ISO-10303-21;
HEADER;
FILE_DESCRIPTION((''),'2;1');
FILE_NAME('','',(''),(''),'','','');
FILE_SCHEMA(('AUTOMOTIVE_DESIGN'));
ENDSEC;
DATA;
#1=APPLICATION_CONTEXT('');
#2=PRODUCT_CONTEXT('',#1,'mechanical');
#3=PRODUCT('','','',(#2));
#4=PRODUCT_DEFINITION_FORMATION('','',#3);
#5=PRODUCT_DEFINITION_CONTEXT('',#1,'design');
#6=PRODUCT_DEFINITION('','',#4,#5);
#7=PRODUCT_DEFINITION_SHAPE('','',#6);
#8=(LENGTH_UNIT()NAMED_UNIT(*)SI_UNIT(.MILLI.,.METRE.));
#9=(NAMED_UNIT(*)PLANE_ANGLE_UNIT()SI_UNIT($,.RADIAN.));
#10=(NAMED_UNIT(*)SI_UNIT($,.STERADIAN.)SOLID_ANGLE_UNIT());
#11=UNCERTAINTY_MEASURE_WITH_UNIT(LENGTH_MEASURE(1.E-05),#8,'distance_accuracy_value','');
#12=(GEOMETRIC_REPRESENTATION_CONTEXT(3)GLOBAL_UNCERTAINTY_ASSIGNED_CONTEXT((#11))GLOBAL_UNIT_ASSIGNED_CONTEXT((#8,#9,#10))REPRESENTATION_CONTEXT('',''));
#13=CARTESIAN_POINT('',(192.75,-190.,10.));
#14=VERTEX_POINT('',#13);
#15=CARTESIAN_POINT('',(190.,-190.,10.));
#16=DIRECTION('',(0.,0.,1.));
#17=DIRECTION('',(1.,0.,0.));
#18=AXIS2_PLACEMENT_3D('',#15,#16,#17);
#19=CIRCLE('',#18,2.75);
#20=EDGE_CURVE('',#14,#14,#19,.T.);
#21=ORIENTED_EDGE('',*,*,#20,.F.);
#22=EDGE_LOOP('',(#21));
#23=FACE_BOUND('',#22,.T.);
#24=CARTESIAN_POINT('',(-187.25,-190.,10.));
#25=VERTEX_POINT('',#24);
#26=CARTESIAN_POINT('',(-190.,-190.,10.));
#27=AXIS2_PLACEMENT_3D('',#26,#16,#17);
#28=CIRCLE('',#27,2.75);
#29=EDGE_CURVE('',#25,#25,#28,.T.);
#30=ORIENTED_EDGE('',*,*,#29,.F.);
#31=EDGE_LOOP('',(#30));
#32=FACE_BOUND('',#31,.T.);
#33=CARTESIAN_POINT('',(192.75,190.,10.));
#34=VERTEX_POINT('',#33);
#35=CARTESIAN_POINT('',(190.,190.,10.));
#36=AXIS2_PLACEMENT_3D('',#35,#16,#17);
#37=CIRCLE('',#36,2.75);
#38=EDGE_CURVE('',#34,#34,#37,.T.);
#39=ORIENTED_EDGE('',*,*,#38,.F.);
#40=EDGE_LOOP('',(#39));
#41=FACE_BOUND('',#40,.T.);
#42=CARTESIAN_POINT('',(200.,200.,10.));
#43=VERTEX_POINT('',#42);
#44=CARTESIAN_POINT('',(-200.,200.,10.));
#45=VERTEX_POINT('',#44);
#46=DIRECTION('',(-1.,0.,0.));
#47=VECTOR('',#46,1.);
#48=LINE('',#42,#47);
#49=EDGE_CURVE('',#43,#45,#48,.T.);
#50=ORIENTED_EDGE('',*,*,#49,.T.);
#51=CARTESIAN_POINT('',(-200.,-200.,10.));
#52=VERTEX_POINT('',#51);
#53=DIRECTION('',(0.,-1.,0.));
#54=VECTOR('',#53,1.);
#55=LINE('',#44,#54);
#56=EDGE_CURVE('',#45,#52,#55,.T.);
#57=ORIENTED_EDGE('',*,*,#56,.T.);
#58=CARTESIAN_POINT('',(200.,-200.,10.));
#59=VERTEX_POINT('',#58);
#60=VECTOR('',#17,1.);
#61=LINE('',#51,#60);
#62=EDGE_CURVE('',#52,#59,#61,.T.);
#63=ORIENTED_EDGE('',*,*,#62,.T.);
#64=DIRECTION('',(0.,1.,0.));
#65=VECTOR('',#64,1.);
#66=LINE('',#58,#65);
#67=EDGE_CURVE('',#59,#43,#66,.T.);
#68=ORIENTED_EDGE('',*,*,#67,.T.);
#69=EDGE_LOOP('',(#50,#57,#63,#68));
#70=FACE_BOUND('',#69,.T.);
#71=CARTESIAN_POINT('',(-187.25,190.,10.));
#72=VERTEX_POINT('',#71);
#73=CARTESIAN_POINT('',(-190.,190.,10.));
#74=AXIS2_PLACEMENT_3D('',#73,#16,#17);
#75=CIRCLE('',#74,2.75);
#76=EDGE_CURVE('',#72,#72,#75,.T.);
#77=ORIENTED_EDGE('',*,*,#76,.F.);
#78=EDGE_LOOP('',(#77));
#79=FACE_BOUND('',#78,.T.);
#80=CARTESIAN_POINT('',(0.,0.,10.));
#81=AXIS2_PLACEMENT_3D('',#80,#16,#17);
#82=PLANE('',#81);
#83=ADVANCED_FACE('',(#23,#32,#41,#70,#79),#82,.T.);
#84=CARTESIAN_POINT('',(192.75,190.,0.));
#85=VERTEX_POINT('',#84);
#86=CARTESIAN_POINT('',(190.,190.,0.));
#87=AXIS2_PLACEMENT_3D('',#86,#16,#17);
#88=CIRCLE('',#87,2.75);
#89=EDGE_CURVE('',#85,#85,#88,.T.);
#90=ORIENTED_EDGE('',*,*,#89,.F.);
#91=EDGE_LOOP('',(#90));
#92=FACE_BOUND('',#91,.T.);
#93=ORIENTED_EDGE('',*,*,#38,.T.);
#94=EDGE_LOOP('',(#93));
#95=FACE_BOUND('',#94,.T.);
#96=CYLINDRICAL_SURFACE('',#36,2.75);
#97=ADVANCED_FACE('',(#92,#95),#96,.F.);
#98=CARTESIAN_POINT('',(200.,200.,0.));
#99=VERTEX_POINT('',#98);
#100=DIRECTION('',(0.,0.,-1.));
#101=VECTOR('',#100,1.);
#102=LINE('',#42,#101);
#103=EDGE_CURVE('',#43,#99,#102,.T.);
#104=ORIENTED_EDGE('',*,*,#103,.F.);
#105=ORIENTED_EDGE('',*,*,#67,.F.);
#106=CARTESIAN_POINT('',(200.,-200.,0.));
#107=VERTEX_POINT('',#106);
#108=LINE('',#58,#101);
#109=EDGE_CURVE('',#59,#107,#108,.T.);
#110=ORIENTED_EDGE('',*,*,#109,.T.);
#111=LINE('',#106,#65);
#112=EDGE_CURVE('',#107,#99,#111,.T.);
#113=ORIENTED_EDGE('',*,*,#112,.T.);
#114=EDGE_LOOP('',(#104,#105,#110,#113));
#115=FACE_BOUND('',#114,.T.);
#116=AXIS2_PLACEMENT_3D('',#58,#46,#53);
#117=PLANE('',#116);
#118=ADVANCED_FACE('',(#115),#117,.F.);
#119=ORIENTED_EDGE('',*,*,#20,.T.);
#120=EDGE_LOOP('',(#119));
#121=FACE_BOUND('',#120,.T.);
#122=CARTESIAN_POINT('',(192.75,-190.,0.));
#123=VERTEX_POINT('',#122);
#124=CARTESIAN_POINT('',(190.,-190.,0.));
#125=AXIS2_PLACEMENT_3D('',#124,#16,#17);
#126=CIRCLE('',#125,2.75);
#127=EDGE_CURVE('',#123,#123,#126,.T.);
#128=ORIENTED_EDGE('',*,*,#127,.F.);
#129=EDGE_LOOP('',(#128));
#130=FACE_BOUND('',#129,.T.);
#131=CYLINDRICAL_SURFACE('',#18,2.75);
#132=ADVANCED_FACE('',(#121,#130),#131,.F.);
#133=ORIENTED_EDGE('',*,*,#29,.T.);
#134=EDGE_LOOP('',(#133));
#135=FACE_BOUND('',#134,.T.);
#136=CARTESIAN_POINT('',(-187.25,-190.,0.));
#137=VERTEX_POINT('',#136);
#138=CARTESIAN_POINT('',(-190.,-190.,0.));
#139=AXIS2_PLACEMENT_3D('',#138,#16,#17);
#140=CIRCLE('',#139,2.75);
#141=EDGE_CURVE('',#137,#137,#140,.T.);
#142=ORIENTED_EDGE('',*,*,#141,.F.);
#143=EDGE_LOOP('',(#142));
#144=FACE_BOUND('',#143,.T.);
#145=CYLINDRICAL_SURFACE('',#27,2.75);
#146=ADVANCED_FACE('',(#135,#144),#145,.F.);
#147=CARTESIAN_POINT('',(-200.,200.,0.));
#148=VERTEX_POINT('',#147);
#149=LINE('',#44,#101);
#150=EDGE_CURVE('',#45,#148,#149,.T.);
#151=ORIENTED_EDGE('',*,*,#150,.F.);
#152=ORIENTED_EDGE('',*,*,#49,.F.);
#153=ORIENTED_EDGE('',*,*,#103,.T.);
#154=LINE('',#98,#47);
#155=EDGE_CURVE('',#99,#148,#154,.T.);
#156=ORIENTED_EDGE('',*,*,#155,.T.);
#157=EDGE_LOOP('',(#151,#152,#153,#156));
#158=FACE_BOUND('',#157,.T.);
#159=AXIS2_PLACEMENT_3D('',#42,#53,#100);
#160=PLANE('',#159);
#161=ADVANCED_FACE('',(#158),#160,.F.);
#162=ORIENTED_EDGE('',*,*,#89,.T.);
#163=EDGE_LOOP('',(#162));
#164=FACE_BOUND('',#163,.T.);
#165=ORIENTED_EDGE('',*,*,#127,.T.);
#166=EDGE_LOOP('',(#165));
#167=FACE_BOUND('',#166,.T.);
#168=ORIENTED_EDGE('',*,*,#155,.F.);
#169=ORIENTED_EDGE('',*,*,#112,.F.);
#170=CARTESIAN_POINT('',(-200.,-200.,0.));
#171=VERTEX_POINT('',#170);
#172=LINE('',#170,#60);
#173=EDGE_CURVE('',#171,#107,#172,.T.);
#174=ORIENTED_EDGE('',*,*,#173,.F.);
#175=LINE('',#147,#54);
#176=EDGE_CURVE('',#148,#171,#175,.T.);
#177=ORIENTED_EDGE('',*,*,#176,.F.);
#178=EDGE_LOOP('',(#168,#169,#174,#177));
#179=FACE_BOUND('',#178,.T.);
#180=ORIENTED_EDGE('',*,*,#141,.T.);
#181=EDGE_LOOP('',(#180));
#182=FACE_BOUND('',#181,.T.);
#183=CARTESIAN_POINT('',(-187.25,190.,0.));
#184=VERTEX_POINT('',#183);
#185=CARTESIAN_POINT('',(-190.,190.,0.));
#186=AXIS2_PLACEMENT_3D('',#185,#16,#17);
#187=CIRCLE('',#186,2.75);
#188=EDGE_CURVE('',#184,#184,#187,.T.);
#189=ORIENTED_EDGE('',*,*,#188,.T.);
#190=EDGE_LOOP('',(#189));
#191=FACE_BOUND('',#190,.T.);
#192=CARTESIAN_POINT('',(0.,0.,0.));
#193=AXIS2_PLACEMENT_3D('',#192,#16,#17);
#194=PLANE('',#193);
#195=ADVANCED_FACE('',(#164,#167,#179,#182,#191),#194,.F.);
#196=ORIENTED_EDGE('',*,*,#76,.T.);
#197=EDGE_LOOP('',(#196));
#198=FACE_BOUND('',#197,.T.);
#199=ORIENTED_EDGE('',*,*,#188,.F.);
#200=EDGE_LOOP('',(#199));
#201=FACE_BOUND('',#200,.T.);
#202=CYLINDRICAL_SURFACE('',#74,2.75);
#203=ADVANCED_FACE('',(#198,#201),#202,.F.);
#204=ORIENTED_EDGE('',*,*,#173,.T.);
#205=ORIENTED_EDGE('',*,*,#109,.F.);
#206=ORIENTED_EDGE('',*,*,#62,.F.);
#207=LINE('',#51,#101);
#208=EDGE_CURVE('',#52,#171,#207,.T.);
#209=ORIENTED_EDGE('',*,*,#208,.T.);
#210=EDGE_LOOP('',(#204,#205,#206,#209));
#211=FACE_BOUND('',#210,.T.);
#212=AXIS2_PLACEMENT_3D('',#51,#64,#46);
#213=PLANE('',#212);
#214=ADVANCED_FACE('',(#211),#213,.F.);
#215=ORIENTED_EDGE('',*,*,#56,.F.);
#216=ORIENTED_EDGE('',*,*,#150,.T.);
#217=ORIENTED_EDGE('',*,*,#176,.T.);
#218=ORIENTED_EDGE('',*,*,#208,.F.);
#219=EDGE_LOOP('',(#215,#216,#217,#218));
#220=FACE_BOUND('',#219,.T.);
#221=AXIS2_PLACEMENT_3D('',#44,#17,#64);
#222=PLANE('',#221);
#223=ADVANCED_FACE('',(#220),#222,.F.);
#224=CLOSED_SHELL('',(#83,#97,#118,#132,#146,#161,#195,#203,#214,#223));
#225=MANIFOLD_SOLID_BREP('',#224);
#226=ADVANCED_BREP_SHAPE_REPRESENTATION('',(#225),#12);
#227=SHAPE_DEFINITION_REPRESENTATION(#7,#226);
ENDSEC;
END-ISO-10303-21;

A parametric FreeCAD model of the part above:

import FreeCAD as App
import Part
import Sketcher

doc = App.newDocument("Part")
body = doc.addObject("PartDesign::Body", "Body")

# Sketch on XY plane
sketch1 = body.newObject("Sketcher::SketchObject", "Sketch")
sketch1.AttachmentSupport = (doc.getObject("XY_Plane"), [""])
sketch1.MapMode = "FlatFace"
sketch1.addGeometry(Part.LineSegment(App.Vector(-200, 200, 0), App.Vector(-200, -200, 0)), False)
sketch1.addGeometry(Part.LineSegment(App.Vector(-200, -200, 0), App.Vector(200, -200, 0)), False)
sketch1.addGeometry(Part.LineSegment(App.Vector(200, -200, 0), App.Vector(200, 200, 0)), False)
sketch1.addGeometry(Part.LineSegment(App.Vector(200, 200, 0), App.Vector(-200, 200, 0)), False)
sketch1.addConstraint(Sketcher.Constraint("Coincident", 0, 2, 1, 1))
sketch1.addConstraint(Sketcher.Constraint("Coincident", 1, 2, 2, 1))
sketch1.addConstraint(Sketcher.Constraint("Coincident", 2, 2, 3, 1))
sketch1.addConstraint(Sketcher.Constraint("Coincident", 3, 2, 0, 1))
sketch1.addConstraint(Sketcher.Constraint("Vertical", 0))
sketch1.addConstraint(Sketcher.Constraint("Horizontal", 1))
sketch1.addConstraint(Sketcher.Constraint("Vertical", 2))
sketch1.addConstraint(Sketcher.Constraint("Horizontal", 3))
sketch1.addConstraint(Sketcher.Constraint("Symmetric", 0, 2, 2, 2, -1, 1))
sketch1.addConstraint(Sketcher.Constraint("Equal", 3, 0))
sketch1.addConstraint(Sketcher.Constraint("DistanceX", 1, 1, 1, 2, 400.0))
pad1 = body.newObject("PartDesign::Pad", "Pad")
pad1.Profile = sketch1
pad1.Length = 10

# Sketch on XY plane
sketch2 = body.newObject("Sketcher::SketchObject", "Sketch001")
sketch2.AttachmentSupport = (doc.getObject("XY_Plane"), [""])
sketch2.MapMode = "FlatFace"
sketch2.AttachmentOffset = App.Placement(App.Vector(0, 0, 10), App.Rotation())
sketch2.addGeometry(Part.Circle(App.Vector(190, 190, 0), App.Vector(0, 0, 1), 2.75), False)
sketch2.addGeometry(Part.Circle(App.Vector(-190, 190, 0), App.Vector(0, 0, 1), 2.75), False)
sketch2.addGeometry(Part.Circle(App.Vector(-190, -190, 0), App.Vector(0, 0, 1), 2.75), False)
sketch2.addGeometry(Part.Circle(App.Vector(190, -190, 0), App.Vector(0, 0, 1), 2.75), False)
sketch2.addConstraint(Sketcher.Constraint("Equal", 0, 1))
sketch2.addConstraint(Sketcher.Constraint("Equal", 1, 2))
sketch2.addConstraint(Sketcher.Constraint("Equal", 2, 3))
sketch2.addConstraint(Sketcher.Constraint("Symmetric", 0, 3, 2, 3, -1, 1))
sketch2.addConstraint(Sketcher.Constraint("Symmetric", 1, 3, 3, 3, -1, 1))
sketch2.addConstraint(Sketcher.Constraint("Symmetric", 0, 3, 1, 3, -2))
sketch2.addConstraint(Sketcher.Constraint("Diameter", 0, 5.5))
sketch2.addConstraint(Sketcher.Constraint("DistanceX", -1, 1, 0, 3, 190.0))
sketch2.addConstraint(Sketcher.Constraint("DistanceY", -1, 1, 0, 3, 190.0))
doc.recompute()
hole = body.newObject("PartDesign::Hole", "Hole")
hole.Profile = sketch2
hole.ThreadType = "None"
hole.Diameter = 5.5
hole.DepthType = "Dimension"
hole.Depth = 16
hole.DrillPoint = "Flat"

doc.recompute()
